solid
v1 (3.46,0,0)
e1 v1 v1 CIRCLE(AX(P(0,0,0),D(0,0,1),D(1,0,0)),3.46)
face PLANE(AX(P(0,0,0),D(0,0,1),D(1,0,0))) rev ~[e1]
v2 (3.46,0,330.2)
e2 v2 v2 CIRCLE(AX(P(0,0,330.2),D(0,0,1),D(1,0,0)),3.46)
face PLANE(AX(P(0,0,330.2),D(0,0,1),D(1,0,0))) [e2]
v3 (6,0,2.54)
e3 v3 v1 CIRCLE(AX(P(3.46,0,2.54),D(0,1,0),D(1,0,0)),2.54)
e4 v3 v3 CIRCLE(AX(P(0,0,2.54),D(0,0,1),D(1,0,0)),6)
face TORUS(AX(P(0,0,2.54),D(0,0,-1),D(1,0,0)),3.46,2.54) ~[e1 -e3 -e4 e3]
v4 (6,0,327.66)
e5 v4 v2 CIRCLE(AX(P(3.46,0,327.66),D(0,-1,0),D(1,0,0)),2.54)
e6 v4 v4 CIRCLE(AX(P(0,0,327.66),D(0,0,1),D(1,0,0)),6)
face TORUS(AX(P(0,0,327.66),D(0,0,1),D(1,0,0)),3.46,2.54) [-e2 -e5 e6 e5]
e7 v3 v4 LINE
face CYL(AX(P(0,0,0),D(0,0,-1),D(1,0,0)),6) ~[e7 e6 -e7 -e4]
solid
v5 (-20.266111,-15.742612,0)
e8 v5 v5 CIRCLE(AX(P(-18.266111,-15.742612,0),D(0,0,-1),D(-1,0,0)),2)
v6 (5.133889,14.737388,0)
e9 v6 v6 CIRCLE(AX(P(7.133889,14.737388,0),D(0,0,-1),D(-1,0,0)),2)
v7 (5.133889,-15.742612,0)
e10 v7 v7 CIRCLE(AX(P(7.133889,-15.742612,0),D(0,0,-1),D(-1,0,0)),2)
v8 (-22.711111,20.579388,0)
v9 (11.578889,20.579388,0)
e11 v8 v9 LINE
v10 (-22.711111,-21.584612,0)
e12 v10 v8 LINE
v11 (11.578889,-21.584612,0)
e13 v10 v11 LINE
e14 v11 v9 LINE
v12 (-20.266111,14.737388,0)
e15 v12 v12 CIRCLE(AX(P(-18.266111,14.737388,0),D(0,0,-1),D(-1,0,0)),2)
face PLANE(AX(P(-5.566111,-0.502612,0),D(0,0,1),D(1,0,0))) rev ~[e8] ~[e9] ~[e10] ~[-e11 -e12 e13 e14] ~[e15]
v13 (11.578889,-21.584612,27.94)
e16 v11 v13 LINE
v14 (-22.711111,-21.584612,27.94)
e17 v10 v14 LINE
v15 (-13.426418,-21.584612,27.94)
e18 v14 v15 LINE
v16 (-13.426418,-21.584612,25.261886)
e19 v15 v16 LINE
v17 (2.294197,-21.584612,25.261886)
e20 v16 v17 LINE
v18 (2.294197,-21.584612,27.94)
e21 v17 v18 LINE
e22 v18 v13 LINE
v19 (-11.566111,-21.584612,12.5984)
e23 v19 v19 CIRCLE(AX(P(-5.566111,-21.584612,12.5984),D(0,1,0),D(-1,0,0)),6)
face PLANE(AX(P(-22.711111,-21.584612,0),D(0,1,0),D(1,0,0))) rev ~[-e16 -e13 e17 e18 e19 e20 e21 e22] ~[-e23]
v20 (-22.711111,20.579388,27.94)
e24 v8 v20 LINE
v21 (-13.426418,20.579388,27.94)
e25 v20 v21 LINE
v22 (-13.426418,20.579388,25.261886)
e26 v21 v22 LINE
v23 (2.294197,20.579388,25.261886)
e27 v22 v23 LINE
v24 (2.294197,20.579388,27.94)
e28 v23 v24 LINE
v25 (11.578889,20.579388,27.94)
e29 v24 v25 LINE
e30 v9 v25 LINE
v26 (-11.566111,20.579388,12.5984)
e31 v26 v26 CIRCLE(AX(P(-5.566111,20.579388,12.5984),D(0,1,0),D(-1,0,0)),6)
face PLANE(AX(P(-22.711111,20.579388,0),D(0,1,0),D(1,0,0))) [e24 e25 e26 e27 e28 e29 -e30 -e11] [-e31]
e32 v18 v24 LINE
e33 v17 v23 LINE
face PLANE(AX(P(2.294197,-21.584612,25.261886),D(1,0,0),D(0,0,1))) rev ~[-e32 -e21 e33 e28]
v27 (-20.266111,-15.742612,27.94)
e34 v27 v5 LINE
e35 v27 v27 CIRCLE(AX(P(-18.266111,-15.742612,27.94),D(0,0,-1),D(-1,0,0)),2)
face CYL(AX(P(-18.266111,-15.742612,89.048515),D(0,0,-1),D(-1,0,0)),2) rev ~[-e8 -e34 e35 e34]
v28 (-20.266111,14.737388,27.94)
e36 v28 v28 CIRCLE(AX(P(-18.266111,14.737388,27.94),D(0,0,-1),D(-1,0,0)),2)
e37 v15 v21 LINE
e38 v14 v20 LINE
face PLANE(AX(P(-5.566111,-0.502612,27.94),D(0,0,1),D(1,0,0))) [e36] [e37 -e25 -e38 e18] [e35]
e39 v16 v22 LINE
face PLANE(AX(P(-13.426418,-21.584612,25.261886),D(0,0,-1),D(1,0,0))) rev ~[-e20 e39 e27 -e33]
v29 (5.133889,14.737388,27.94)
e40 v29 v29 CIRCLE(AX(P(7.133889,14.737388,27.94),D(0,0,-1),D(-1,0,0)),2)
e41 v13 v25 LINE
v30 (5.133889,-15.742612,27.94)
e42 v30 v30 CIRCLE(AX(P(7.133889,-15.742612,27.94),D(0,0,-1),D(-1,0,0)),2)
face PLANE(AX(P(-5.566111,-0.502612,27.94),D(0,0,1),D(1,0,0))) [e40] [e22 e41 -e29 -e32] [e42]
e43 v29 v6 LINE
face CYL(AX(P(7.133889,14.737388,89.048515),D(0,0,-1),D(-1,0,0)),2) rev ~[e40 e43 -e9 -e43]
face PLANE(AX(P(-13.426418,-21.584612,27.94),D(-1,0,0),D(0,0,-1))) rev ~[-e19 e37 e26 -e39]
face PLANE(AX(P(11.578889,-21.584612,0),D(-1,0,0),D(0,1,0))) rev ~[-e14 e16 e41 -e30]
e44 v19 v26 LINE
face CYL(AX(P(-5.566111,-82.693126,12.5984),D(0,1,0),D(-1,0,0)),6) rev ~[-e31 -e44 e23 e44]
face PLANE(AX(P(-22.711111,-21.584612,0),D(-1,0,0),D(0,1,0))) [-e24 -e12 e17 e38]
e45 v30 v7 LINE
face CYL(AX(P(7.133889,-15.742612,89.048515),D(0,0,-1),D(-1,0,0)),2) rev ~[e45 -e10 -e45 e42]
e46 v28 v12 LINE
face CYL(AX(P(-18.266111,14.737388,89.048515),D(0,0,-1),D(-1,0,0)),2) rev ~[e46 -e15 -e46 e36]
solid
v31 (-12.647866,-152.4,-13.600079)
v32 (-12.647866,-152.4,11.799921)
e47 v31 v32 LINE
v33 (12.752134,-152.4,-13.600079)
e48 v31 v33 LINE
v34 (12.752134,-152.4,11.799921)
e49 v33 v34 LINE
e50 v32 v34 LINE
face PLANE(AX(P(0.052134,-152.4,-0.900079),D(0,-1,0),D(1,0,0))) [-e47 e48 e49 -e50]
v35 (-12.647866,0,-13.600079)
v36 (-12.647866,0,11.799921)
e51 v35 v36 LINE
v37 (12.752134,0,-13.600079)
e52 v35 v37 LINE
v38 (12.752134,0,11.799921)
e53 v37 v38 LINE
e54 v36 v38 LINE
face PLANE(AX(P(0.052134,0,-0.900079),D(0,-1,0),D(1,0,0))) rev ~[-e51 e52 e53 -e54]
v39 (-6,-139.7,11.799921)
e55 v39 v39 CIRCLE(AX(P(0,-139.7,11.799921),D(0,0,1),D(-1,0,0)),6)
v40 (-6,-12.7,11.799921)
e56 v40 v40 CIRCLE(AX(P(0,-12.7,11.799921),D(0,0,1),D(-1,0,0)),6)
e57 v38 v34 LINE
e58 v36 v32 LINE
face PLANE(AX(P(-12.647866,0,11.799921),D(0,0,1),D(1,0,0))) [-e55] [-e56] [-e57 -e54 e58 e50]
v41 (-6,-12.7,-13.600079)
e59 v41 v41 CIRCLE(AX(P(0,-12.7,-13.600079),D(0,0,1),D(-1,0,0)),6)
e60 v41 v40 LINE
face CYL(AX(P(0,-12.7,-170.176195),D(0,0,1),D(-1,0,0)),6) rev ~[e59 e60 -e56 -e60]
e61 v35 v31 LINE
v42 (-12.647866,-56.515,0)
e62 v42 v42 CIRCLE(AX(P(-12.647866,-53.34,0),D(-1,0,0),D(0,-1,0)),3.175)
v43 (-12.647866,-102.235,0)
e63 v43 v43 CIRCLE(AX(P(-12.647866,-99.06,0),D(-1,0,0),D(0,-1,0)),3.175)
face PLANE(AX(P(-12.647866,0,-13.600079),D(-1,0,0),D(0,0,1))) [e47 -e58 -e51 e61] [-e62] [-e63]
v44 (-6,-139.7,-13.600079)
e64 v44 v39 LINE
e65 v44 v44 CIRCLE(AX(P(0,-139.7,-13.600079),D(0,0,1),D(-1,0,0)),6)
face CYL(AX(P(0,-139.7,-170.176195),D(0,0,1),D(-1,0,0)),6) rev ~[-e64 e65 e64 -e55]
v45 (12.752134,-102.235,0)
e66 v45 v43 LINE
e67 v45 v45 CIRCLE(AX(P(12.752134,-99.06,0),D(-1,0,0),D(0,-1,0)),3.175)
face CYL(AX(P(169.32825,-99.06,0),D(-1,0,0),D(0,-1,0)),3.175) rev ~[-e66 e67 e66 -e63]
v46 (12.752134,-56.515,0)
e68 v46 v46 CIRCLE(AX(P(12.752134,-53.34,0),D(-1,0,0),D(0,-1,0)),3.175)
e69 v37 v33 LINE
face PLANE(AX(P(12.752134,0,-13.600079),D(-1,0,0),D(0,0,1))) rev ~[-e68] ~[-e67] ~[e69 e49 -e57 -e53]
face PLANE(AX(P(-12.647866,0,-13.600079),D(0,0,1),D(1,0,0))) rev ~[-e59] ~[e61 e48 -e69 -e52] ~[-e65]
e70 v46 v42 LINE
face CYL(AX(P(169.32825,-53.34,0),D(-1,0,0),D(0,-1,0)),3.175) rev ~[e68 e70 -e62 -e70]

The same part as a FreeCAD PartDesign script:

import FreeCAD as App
import Part
import Sketcher
Q = App.Units.Quantity


def edges_at(feature, points):
    """Names of the edges that pass closest to the given points."""
    edges = feature.Shape.Edges
    near = lambda p: min(range(len(edges)), key=lambda i: edges[i].distToShape(Part.Vertex(*p))[0])
    return sorted({f"Edge{near(p) + 1}" for p in points})

doc = App.newDocument("Part")
params = doc.addObject("Spreadsheet::Sheet", "Params")
for row, (alias, value) in enumerate([
    ("pad1_length", "13 in"),
    ("fillet_radius", "0.1 in"),
    ("sketch2_width", "1 in"),
    ("pad2_length", "6 in"),
    ("hole_diameter", "12 mm"),
    ("sketch4_diameter", "0.25 in"),
    ("hole2_diameter", "0.25 in"),
    ("sketch5_width", "1.35 in"),
    ("sketch5_height", "1.66 in"),
    ("pad3_length", "1.1 in"),
    ("hole3_diameter", "4 mm"),
    ("hole4_diameter", "12 mm"),
], start=1):
    params.set(f"A{row}", alias)
    params.set(f"B{row}", "=" + value)
    params.setAlias(f"B{row}", alias)

body = doc.addObject("PartDesign::Body", "Body")

# Sketch on XY plane
sketch1 = body.newObject("Sketcher::SketchObject", "Sketch")
sketch1.AttachmentSupport = (doc.getObject("XY_Plane"), [""])
sketch1.MapMode = "FlatFace"
sketch1.addGeometry(Part.Circle(App.Vector(0, 0, 0), App.Vector(0, 0, 1), 6), False)
sketch1.addConstraint([
    Sketcher.Constraint("Coincident", 0, 3, -1, 1),
    Sketcher.Constraint("Diameter", 0, Q("12 mm")),
])
pad1 = body.newObject("PartDesign::Pad", "Pad")
pad1.Profile = sketch1
pad1.setExpression("Length", "Params.pad1_length")
doc.recompute()

fillet = body.newObject("PartDesign::Fillet", "Fillet")
fillet.Base = (pad1, edges_at(pad1, [(-6, 0, 330.2), (-6, 0, 0)]))
fillet.setExpression("Radius", "Params.fillet_radius")
body2 = doc.addObject("PartDesign::Body", "Body001")

# Sketch on XZ plane
sketch2 = body2.newObject("Sketcher::SketchObject", "Sketch001")
sketch2.AttachmentSupport = (doc.getObject("XZ_Plane001"), [""])
sketch2.MapMode = "FlatFace"
sketch2.addGeometry([
    Part.LineSegment(App.Vector(-13, 12, 0), App.Vector(-13, -14, 0)),
    Part.LineSegment(App.Vector(-13, -14, 0), App.Vector(13, -14, 0)),
    Part.LineSegment(App.Vector(13, -14, 0), App.Vector(13, 12, 0)),
    Part.LineSegment(App.Vector(13, 12, 0), App.Vector(-13, 12, 0)),
], False)
sketch2.addConstraint([
    Sketcher.Constraint("Coincident", 0, 2, 1, 1),
    Sketcher.Constraint("Coincident", 1, 2, 2, 1),
    Sketcher.Constraint("Coincident", 2, 2, 3, 1),
    Sketcher.Constraint("Coincident", 3, 2, 0, 1),
    Sketcher.Constraint("Vertical", 0),
    Sketcher.Constraint("Horizontal", 1),
    Sketcher.Constraint("Vertical", 2),
    Sketcher.Constraint("Horizontal", 3),
    Sketcher.Constraint("Equal", 3, 0),
    Sketcher.Constraint("DistanceX", 1, 1, 1, 2, Q("1 in")),
    Sketcher.Constraint("DistanceY", 0, 2, -1, 1, Q("13.600079 mm")),
    Sketcher.Constraint("DistanceX", 0, 2, -1, 1, Q("12.647866 mm")),
])
sketch2.setExpression("Constraints[9]", "Params.sketch2_width")
pad2 = body2.newObject("PartDesign::Pad", "Pad001")
pad2.Profile = sketch2
pad2.setExpression("Length", "Params.pad2_length")

# Sketch on XY plane
sketch3 = body2.newObject("Sketcher::SketchObject", "Sketch002")
sketch3.AttachmentSupport = (doc.getObject("XY_Plane001"), [""])
sketch3.MapMode = "FlatFace"
sketch3.AttachmentOffset = App.Placement(App.Vector(0, 0, -13.600079), App.Rotation())
sketch3.addGeometry([
    Part.Circle(App.Vector(0, -140, 0), App.Vector(0, 0, 1), 6),
    Part.Circle(App.Vector(0, -13, 0), App.Vector(0, 0, 1), 6),
], False)
sketch3.addConstraint([
    Sketcher.Constraint("Equal", 0, 1),
    Sketcher.Constraint("PointOnObject", 0, 3, -2),
    Sketcher.Constraint("PointOnObject", 1, 3, -2),
    Sketcher.Constraint("DistanceY", 0, 3, 1, 3, Q("5 in")),
    Sketcher.Constraint("DistanceY", 0, 3, -1, 1, Q("5.5 in")),
    Sketcher.Constraint("Diameter", 0, Q("12 mm")),
])
doc.recompute()
hole = body2.newObject("PartDesign::Hole", "Hole")
hole.Profile = sketch3
hole.ThreadType = "None"
hole.setExpression("Diameter", "Params.hole_diameter")
hole.DepthType = "ThroughAll"
hole.Reversed = True

# Sketch on YZ plane
sketch4 = body2.newObject("Sketcher::SketchObject", "Sketch003")
sketch4.AttachmentSupport = (doc.getObject("YZ_Plane001"), [""])
sketch4.MapMode = "FlatFace"
sketch4.AttachmentOffset = App.Placement(App.Vector(0, 0, 12.752134), App.Rotation())
sketch4.addGeometry([
    Part.Circle(App.Vector(-99.1, 0, 0), App.Vector(0, 0, 1), 3.2),
    Part.Circle(App.Vector(-53.3, 0, 0), App.Vector(0, 0, 1), 3.2),
], False)
sketch4.addConstraint([
    Sketcher.Constraint("Equal", 0, 1),
    Sketcher.Constraint("PointOnObject", 0, 3, -1),
    Sketcher.Constraint("PointOnObject", 1, 3, -1),
    Sketcher.Constraint("Diameter", 0, Q("0.25 in")),
    Sketcher.Constraint("DistanceX", 0, 3, -1, 1, Q("3.9 in")),
    Sketcher.Constraint("DistanceX", 1, 3, -1, 1, Q("2.1 in")),
])
sketch4.setExpression("Constraints[3]", "Params.sketch4_diameter")
doc.recompute()
hole2 = body2.newObject("PartDesign::Hole", "Hole001")
hole2.Profile = sketch4
hole2.ThreadType = "None"
hole2.setExpression("Diameter", "Params.hole2_diameter")
hole2.DepthType = "ThroughAll"
body3 = doc.addObject("PartDesign::Body", "Body002")

# Sketch on XY plane
sketch5 = body3.newObject("Sketcher::SketchObject", "Sketch004")
sketch5.AttachmentSupport = (doc.getObject("XY_Plane002"), [""])
sketch5.MapMode = "FlatFace"
sketch5.addGeometry([
    Part.LineSegment(App.Vector(-23, 21, 0), App.Vector(-23, -22, 0)),
    Part.LineSegment(App.Vector(-23, -22, 0), App.Vector(12, -22, 0)),
    Part.LineSegment(App.Vector(12, -22, 0), App.Vector(12, 21, 0)),
    Part.LineSegment(App.Vector(12, 21, 0), App.Vector(-23, 21, 0)),
], False)
sketch5.addConstraint([
    Sketcher.Constraint("Coincident", 0, 2, 1, 1),
    Sketcher.Constraint("Coincident", 1, 2, 2, 1),
    Sketcher.Constraint("Coincident", 2, 2, 3, 1),
    Sketcher.Constraint("Coincident", 3, 2, 0, 1),
    Sketcher.Constraint("Vertical", 0),
    Sketcher.Constraint("Horizontal", 1),
    Sketcher.Constraint("Vertical", 2),
    Sketcher.Constraint("Horizontal", 3),
    Sketcher.Constraint("DistanceX", 1, 1, 1, 2, Q("1.35 in")),
    Sketcher.Constraint("DistanceY", 0, 2, 0, 1, Q("1.66 in")),
    Sketcher.Constraint("DistanceX", 0, 2, -1, 1, Q("22.711111 mm")),
    Sketcher.Constraint("DistanceY", 0, 2, -1, 1, Q("21.584612 mm")),
])
sketch5.setExpression("Constraints[8]", "Params.sketch5_width")
sketch5.setExpression("Constraints[9]", "Params.sketch5_height")
pad3 = body3.newObject("PartDesign::Pad", "Pad002")
pad3.Profile = sketch5
pad3.setExpression("Length", "Params.pad3_length")

# Sketch on XY plane
sketch6 = body3.newObject("Sketcher::SketchObject", "Sketch005")
sketch6.AttachmentSupport = (doc.getObject("XY_Plane002"), [""])
sketch6.MapMode = "FlatFace"
sketch6.AttachmentOffset = App.Placement(App.Vector(0, 0, 1.1 * 25.4), App.Rotation())
sketch6.addGeometry([
    Part.Circle(App.Vector(-18.3, 14.7, 0), App.Vector(0, 0, 1), 2),
    Part.Circle(App.Vector(-18.3, -15.7, 0), App.Vector(0, 0, 1), 2),
    Part.Circle(App.Vector(7.1, -15.7, 0), App.Vector(0, 0, 1), 2),
    Part.Circle(App.Vector(7.1, 14.7, 0), App.Vector(0, 0, 1), 2),
], False)
sketch6.addConstraint([
    Sketcher.Constraint("Equal", 0, 1),
    Sketcher.Constraint("Equal", 1, 2),
    Sketcher.Constraint("Equal", 2, 3),
    Sketcher.Constraint("Horizontal", 1, 3, 2, 3),
    Sketcher.Constraint("Horizontal", 0, 3, 3, 3),
    Sketcher.Constraint("Vertical", 0, 3, 1, 3),
    Sketcher.Constraint("Vertical", 2, 3, 3, 3),
    Sketcher.Constraint("DistanceX", 1, 3, 2, 3, Q("1 in")),
    Sketcher.Constraint("DistanceY", 1, 3, 0, 3, Q("1.2 in")),
    Sketcher.Constraint("Diameter", 0, Q("4 mm")),
    Sketcher.Constraint("DistanceX", 0, 3, -1, 1, Q("18.266111 mm")),
    Sketcher.Constraint("DistanceY", -1, 1, 0, 3, Q("14.737388 mm")),
])
doc.recompute()
hole3 = body3.newObject("PartDesign::Hole", "Hole002")
hole3.Profile = sketch6
hole3.ThreadType = "None"
hole3.setExpression("Diameter", "Params.hole3_diameter")
hole3.DepthType = "ThroughAll"

# Sketch on XZ plane
sketch7 = body3.newObject("Sketcher::SketchObject", "Sketch006")
sketch7.AttachmentSupport = (doc.getObject("XZ_Plane002"), [""])
sketch7.MapMode = "FlatFace"
sketch7.AttachmentOffset = App.Placement(App.Vector(0, 0, 21.584612), App.Rotation())
sketch7.addGeometry(Part.Circle(App.Vector(-6, 13, 0), App.Vector(0, 0, 1), 6), False)
sketch7.addConstraint([
    Sketcher.Constraint("Diameter", 0, Q("12 mm")),
    Sketcher.Constraint("DistanceY", -1, 1, 0, 3, Q("0.496 in")),
    Sketcher.Constraint("DistanceX", 0, 3, -1, 1, Q("5.566111 mm")),
])
doc.recompute()
hole4 = body3.newObject("PartDesign::Hole", "Hole003")
hole4.Profile = sketch7
hole4.ThreadType = "None"
hole4.setExpression("Diameter", "Params.hole4_diameter")
hole4.DepthType = "ThroughAll"

# Sketch on XZ plane
sketch8 = body3.newObject("Sketcher::SketchObject", "Sketch007")
sketch8.AttachmentSupport = (doc.getObject("XZ_Plane002"), [""])
sketch8.MapMode = "FlatFace"
sketch8.AttachmentOffset = App.Placement(App.Vector(0, 0, 21.584612), App.Rotation())
sketch8.addGeometry([
    Part.LineSegment(App.Vector(2.3, 27.9, 0), App.Vector(-13.4, 27.9, 0)),
    Part.LineSegment(App.Vector(-13.4, 27.9, 0), App.Vector(-13.4, 25.3, 0)),
    Part.LineSegment(App.Vector(-13.4, 25.3, 0), App.Vector(2.3, 25.3, 0)),
    Part.LineSegment(App.Vector(2.3, 25.3, 0), App.Vector(2.3, 27.9, 0)),
], False)
sketch8.addConstraint([
    Sketcher.Constraint("Coincident", 0, 2, 1, 1),
    Sketcher.Constraint("Coincident", 1, 2, 2, 1),
    Sketcher.Constraint("Coincident", 2, 2, 3, 1),
    Sketcher.Constraint("Coincident", 3, 2, 0, 1),
    Sketcher.Constraint("Horizontal", 0),
    Sketcher.Constraint("Vertical", 1),
    Sketcher.Constraint("Horizontal", 2),
    Sketcher.Constraint("Vertical", 3),
    Sketcher.Constraint("DistanceY", -1, 1, 0, 2, Q("1.1 in")),
    Sketcher.Constraint("DistanceX", 0, 2, 0, 1, Q("15.720616 mm")),
    Sketcher.Constraint("DistanceY", 1, 2, 1, 1, Q("2.678114 mm")),
    Sketcher.Constraint("DistanceX", 0, 2, -1, 1, Q("13.426418 mm")),
])
pocket1 = body3.newObject("PartDesign::Pocket", "Pocket")
pocket1.Profile = sketch8
pocket1.Type = "ThroughAll"

doc.recompute()
